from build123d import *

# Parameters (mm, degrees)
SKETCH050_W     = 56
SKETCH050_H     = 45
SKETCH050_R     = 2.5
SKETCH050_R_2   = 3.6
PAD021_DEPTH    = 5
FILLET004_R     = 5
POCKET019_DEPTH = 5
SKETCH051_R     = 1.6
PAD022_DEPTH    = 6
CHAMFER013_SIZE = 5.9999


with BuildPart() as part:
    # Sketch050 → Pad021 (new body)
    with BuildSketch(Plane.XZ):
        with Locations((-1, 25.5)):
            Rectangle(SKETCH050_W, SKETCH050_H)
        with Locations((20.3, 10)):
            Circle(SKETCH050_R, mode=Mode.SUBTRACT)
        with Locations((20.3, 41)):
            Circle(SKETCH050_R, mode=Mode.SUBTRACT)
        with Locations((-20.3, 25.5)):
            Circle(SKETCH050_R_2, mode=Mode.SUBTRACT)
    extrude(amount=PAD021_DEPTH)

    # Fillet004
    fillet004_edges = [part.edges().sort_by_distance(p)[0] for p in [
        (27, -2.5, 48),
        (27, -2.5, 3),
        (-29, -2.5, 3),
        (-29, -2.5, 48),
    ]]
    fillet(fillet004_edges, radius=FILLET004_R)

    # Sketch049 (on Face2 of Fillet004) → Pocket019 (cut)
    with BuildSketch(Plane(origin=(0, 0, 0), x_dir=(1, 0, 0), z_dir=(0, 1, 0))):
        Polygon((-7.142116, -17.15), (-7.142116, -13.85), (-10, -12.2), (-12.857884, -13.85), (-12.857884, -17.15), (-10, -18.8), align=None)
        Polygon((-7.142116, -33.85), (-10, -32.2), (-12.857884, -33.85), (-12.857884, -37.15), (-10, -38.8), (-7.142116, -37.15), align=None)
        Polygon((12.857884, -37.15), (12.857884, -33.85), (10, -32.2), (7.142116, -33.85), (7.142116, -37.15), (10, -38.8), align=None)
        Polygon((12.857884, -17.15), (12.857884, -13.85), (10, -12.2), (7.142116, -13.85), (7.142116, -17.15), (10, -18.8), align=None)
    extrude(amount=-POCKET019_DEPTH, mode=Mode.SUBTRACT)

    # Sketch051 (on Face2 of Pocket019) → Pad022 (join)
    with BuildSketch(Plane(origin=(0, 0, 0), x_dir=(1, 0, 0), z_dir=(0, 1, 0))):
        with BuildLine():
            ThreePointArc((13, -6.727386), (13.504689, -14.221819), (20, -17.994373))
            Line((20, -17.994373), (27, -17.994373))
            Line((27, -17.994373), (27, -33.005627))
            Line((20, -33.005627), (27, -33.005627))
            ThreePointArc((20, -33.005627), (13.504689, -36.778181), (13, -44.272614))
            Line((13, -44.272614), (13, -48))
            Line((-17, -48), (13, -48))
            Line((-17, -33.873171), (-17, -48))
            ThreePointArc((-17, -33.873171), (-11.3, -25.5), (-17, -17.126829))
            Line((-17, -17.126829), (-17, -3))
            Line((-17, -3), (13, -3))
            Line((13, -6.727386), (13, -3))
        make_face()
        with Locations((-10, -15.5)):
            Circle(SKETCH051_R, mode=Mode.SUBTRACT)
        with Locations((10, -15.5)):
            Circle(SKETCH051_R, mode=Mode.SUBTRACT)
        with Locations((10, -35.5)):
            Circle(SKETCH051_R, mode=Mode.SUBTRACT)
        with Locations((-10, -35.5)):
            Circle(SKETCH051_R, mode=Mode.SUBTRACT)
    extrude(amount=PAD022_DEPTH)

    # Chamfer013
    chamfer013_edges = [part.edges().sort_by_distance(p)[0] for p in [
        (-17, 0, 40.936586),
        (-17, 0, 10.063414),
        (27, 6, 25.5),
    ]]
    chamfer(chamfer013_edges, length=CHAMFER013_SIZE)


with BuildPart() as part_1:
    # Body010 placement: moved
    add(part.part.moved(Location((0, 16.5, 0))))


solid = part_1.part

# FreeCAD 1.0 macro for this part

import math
import FreeCAD as App
import Part
import Sketcher

V = App.Vector
Q = App.Units.Quantity


def edges_at(feature, points):
    """Names of the edges that pass closest to the given points."""
    edges = feature.Shape.Edges
    near = lambda p: min(range(len(edges)), key=lambda i: edges[i].distToShape(Part.Vertex(*p))[0])
    return sorted({f"Edge{near(p) + 1}" for p in points})


def add_polygon(sketch, points):
    """Adds a closed chain of lines whose ends are joined by coincident constraints."""
    first, n = sketch.GeometryCount, len(points)
    for a, b in zip(points, points[1:] + points[:1]):
        sketch.addGeometry(Part.LineSegment(App.Vector(*a, 0), App.Vector(*b, 0)), False)
    for i in range(n):
        sketch.addConstraint(Sketcher.Constraint("Coincident", first + i, 2, first + (i + 1) % n, 1))

doc = App.newDocument("Part")
body = doc.addObject("PartDesign::Body", "Body")

# Sketch on XZ plane
sketch1 = body.newObject("Sketcher::SketchObject", "Sketch")
sketch1.AttachmentSupport = (doc.getObject("XZ_Plane"), [""])
sketch1.MapMode = "FlatFace"
add_polygon(sketch1, [(-29, 48), (-29, 3), (27, 3), (27, 48)])  # lines 0-3
sketch1.addGeometry(Part.Circle(V(20.3, 10, 0), V(0, 0, 1), 2.5), False)  # 4
sketch1.addGeometry(Part.Circle(V(-20.3, 25.5, 0), V(0, 0, 1), 3.6), False)  # 5
sketch1.addGeometry(Part.Circle(V(20.3, 41, 0), V(0, 0, 1), 2.5), False)  # 6
sketch1.addConstraint(Sketcher.Constraint("Vertical", 0))
sketch1.addConstraint(Sketcher.Constraint("Horizontal", 1))
sketch1.addConstraint(Sketcher.Constraint("Vertical", 2))
sketch1.addConstraint(Sketcher.Constraint("Horizontal", 3))
sketch1.addConstraint(Sketcher.Constraint("Equal", 4, 6))
sketch1.addConstraint(Sketcher.Constraint("Vertical", 4, 3, 6, 3))
sketch1.addConstraint(Sketcher.Constraint("Diameter", 4, Q("5 mm")))
sketch1.addConstraint(Sketcher.Constraint("Diameter", 5, Q("7.2 mm")))
sketch1.addConstraint(Sketcher.Constraint("DistanceX", 1, 1, 1, 2, Q("56 mm")))
sketch1.addConstraint(Sketcher.Constraint("DistanceY", 0, 2, 0, 1, Q("45 mm")))
sketch1.addConstraint(Sketcher.Constraint("DistanceY", -1, 1, 4, 3, Q("10 mm")))
sketch1.addConstraint(Sketcher.Constraint("DistanceY", -1, 1, 6, 3, Q("41 mm")))
sketch1.addConstraint(Sketcher.Constraint("DistanceX", 0, 2, -1, 1, Q("29 mm")))
sketch1.addConstraint(Sketcher.Constraint("DistanceY", -1, 1, 0, 2, Q("3 mm")))
sketch1.addConstraint(Sketcher.Constraint("DistanceX", -1, 1, 4, 3, Q("20.3 mm")))
sketch1.addConstraint(Sketcher.Constraint("DistanceX", 5, 3, -1, 1, Q("20.3 mm")))
sketch1.addConstraint(Sketcher.Constraint("DistanceY", -1, 1, 5, 3, Q("25.5 mm")))
pad1 = body.newObject("PartDesign::Pad", "Pad")
pad1.Profile = sketch1
pad1.Length = 5
doc.recompute()

fillet = body.newObject("PartDesign::Fillet", "Fillet")
fillet.Base = (pad1, edges_at(pad1, [
    (27, -2.5, 48),
    (27, -2.5, 3),
    (-29, -2.5, 3),
    (-29, -2.5, 48),
]))
fillet.Radius = 5

# Sketch on XZ plane
sketch2 = body.newObject("Sketcher::SketchObject", "Sketch001")
sketch2.AttachmentSupport = (doc.getObject("XZ_Plane"), [""])
sketch2.MapMode = "FlatFace"
add_polygon(sketch2, [(-7.1, 17.1), (-7.1, 13.8), (-10, 12.2), (-12.9, 13.8), (-12.9, 17.1), (-10, 18.8)])  # lines 0-5
add_polygon(sketch2, [(-7.1, 33.9), (-10, 32.2), (-12.9, 33.9), (-12.9, 37.1), (-10, 38.8), (-7.1, 37.1)])  # lines 6-11
add_polygon(sketch2, [(12.9, 37.1), (12.9, 33.9), (10, 32.2), (7.1, 33.9), (7.1, 37.1), (10, 38.8)])  # lines 12-17
add_polygon(sketch2, [(12.9, 17.1), (12.9, 13.8), (10, 12.2), (7.1, 13.8), (7.1, 17.1), (10, 18.8)])  # lines 18-23
sketch2.addConstraint(Sketcher.Constraint("Vertical", 0))
sketch2.addConstraint(Sketcher.Constraint("Vertical", 3))
sketch2.addConstraint(Sketcher.Constraint("Vertical", 8))
sketch2.addConstraint(Sketcher.Constraint("Vertical", 11))
sketch2.addConstraint(Sketcher.Constraint("Vertical", 12))
sketch2.addConstraint(Sketcher.Constraint("Vertical", 15))
sketch2.addConstraint(Sketcher.Constraint("Vertical", 18))
sketch2.addConstraint(Sketcher.Constraint("Vertical", 21))
sketch2.addConstraint(Sketcher.Constraint("Symmetric", 7, 2, 12, 2, -2))
sketch2.addConstraint(Sketcher.Constraint("Symmetric", 6, 2, 13, 2, -2))
sketch2.addConstraint(Sketcher.Constraint("Symmetric", 11, 2, 14, 2, -2))
sketch2.addConstraint(Sketcher.Constraint("Symmetric", 9, 2, 16, 2, -2))
sketch2.addConstraint(Sketcher.Constraint("Symmetric", 2, 2, 18, 2, -2))
sketch2.addConstraint(Sketcher.Constraint("Symmetric", 1, 2, 19, 2, -2))
sketch2.addConstraint(Sketcher.Constraint("Symmetric", 0, 2, 20, 2, -2))
sketch2.addConstraint(Sketcher.Constraint("Symmetric", 4, 2, 22, 2, -2))
sketch2.addConstraint(Sketcher.Constraint("Parallel", 1, 4))
sketch2.addConstraint(Sketcher.Constraint("Parallel", 2, 5))
sketch2.addConstraint(Sketcher.Constraint("Parallel", 4, 6))
sketch2.addConstraint(Sketcher.Constraint("Parallel", 5, 7))
sketch2.addConstraint(Sketcher.Constraint("Parallel", 6, 9))
sketch2.addConstraint(Sketcher.Constraint("Parallel", 7, 10))
sketch2.addConstraint(Sketcher.Constraint("Parallel", 9, 13))
sketch2.addConstraint(Sketcher.Constraint("Parallel", 13, 16))
sketch2.addConstraint(Sketcher.Constraint("Parallel", 14, 17))
sketch2.addConstraint(Sketcher.Constraint("Parallel", 19, 22))
sketch2.addConstraint(Sketcher.Constraint("Parallel", 20, 23))
sketch2.addConstraint(Sketcher.Constraint("Horizontal", 0, 2, 2, 2))
sketch2.addConstraint(Sketcher.Constraint("Horizontal", 3, 2, 5, 2))
sketch2.addConstraint(Sketcher.Constraint("Horizontal", 8, 2, 10, 2))
sketch2.addConstraint(Sketcher.Constraint("Horizontal", 7, 2, 11, 2))
sketch2.addConstraint(Sketcher.Constraint("Vertical", 4, 2, 6, 2))
sketch2.addConstraint(Sketcher.Constraint("Vertical", 3, 2, 7, 2))
sketch2.addConstraint(Sketcher.Constraint("Equal", 3, 8))
sketch2.addConstraint(Sketcher.Constraint("Angle", 1, Q("-150.000001 deg")))
sketch2.addConstraint(Sketcher.Constraint("DistanceY", 0, 2, 0, 1, Q("3.3 mm")))
sketch2.addConstraint(Sketcher.Constraint("DistanceX", 1, 2, -1, 1, Q("10 mm")))
sketch2.addConstraint(Sketcher.Constraint("DistanceY", 2, 2, 7, 2, Q("20 mm")))
sketch2.addConstraint(Sketcher.Constraint("Distance", 1, Q("3.3 mm")))
sketch2.addConstraint(Sketcher.Constraint("DistanceY", -1, 1, 1, 2, Q("12.2 mm")))
pocket1 = body.newObject("PartDesign::Pocket", "Pocket")
pocket1.Profile = sketch2
pocket1.Length = 5
pocket1.Reversed = True

# Sketch on XZ plane
sketch3 = body.newObject("Sketcher::SketchObject", "Sketch002")
sketch3.AttachmentSupport = (doc.getObject("XZ_Plane"), [""])
sketch3.MapMode = "FlatFace"
sketch3.addGeometry(Part.ArcOfCircle(Part.Circle(V(20.3, 10, 0), V(0, 0, 1), 8), math.radians(92), math.radians(204)), False)
sketch3.addGeometry(Part.LineSegment(V(13, 6.7, 0), V(13, 3, 0)), False)
sketch3.addGeometry(Part.LineSegment(V(13, 3, 0), V(-17, 3, 0)), False)
sketch3.addGeometry(Part.LineSegment(V(-17, 3, 0), V(-17, 17.1, 0)), False)
sketch3.addGeometry(Part.ArcOfCircle(Part.Circle(V(-20.3, 25.5, 0), V(0, 0, 1), 9), math.radians(-68), math.radians(68)), False)
sketch3.addGeometry(Part.LineSegment(V(-17, 33.9, 0), V(-17, 48, 0)), False)
sketch3.addGeometry(Part.LineSegment(V(-17, 48, 0), V(13, 48, 0)), False)
sketch3.addGeometry(Part.LineSegment(V(13, 48, 0), V(13, 44.3, 0)), False)
sketch3.addGeometry(Part.ArcOfCircle(Part.Circle(V(20.3, 41, 0), V(0, 0, 1), 8), math.radians(156), math.radians(268)), False)
sketch3.addGeometry(Part.LineSegment(V(20, 33, 0), V(27, 33, 0)), False)
sketch3.addGeometry(Part.LineSegment(V(27, 33, 0), V(27, 18, 0)), False)
sketch3.addGeometry(Part.LineSegment(V(27, 18, 0), V(20, 18, 0)), False)
sketch3.addGeometry(Part.Circle(V(10, 35.5, 0), V(0, 0, 1), 1.6), False)
sketch3.addGeometry(Part.Circle(V(-10, 35.5, 0), V(0, 0, 1), 1.6), False)
sketch3.addGeometry(Part.Circle(V(10, 15.5, 0), V(0, 0, 1), 1.6), False)
sketch3.addGeometry(Part.Circle(V(-10, 15.5, 0), V(0, 0, 1), 1.6), False)
sketch3.addConstraint(Sketcher.Constraint("Coincident", 0, 2, 1, 1))
sketch3.addConstraint(Sketcher.Constraint("Coincident", 1, 2, 2, 1))
sketch3.addConstraint(Sketcher.Constraint("Coincident", 2, 2, 3, 1))
sketch3.addConstraint(Sketcher.Constraint("Coincident", 3, 2, 4, 1))
sketch3.addConstraint(Sketcher.Constraint("Coincident", 4, 2, 5, 1))
sketch3.addConstraint(Sketcher.Constraint("Coincident", 5, 2, 6, 1))
sketch3.addConstraint(Sketcher.Constraint("Coincident", 6, 2, 7, 1))
sketch3.addConstraint(Sketcher.Constraint("Coincident", 7, 2, 8, 1))
sketch3.addConstraint(Sketcher.Constraint("Coincident", 8, 2, 9, 1))
sketch3.addConstraint(Sketcher.Constraint("Coincident", 9, 2, 10, 1))
sketch3.addConstraint(Sketcher.Constraint("Coincident", 10, 2, 11, 1))
sketch3.addConstraint(Sketcher.Constraint("Coincident", 11, 2, 0, 1))
sketch3.addConstraint(Sketcher.Constraint("Vertical", 1))
sketch3.addConstraint(Sketcher.Constraint("Horizontal", 2))
sketch3.addConstraint(Sketcher.Constraint("Vertical", 3))
sketch3.addConstraint(Sketcher.Constraint("Vertical", 5))
sketch3.addConstraint(Sketcher.Constraint("Horizontal", 6))
sketch3.addConstraint(Sketcher.Constraint("Vertical", 7))
sketch3.addConstraint(Sketcher.Constraint("Horizontal", 9))
sketch3.addConstraint(Sketcher.Constraint("Vertical", 10))
sketch3.addConstraint(Sketcher.Constraint("Horizontal", 11))
sketch3.addConstraint(Sketcher.Constraint("Equal", 0, 8))
sketch3.addConstraint(Sketcher.Constraint("Equal", 12, 13))
sketch3.addConstraint(Sketcher.Constraint("Equal", 13, 14))
sketch3.addConstraint(Sketcher.Constraint("Equal", 14, 15))
sketch3.addConstraint(Sketcher.Constraint("Symmetric", 12, 3, 13, 3, -2))
sketch3.addConstraint(Sketcher.Constraint("Symmetric", 14, 3, 15, 3, -2))
sketch3.addConstraint(Sketcher.Constraint("Vertical", 0, 3, 8, 3))
sketch3.addConstraint(Sketcher.Constraint("Vertical", 12, 3, 14, 3))
sketch3.addConstraint(Sketcher.Constraint("Vertical", 3, 2, 4, 2))
sketch3.addConstraint(Sketcher.Constraint("Vertical", 1, 2, 6, 2))
sketch3.addConstraint(Sketcher.Constraint("Vertical", 8, 2, 11, 2))
sketch3.addConstraint(Sketcher.Constraint("Equal", 3, 5))
sketch3.addConstraint(Sketcher.Constraint("Equal", 1, 7))
sketch3.addConstraint(Sketcher.Constraint("Radius", 0, Q("8 mm")))
sketch3.addConstraint(Sketcher.Constraint("Radius", 4, Q("8.999999 mm")))
sketch3.addConstraint(Sketcher.Constraint("Diameter", 12, Q("3.2 mm")))
sketch3.addConstraint(Sketcher.Constraint("DistanceX", 2, 2, 2, 1, Q("30 mm")))
sketch3.addConstraint(Sketcher.Constraint("DistanceX", 9, 1, 9, 2, Q("7 mm")))
sketch3.addConstraint(Sketcher.Constraint("DistanceY", -1, 1, 0, 3, Q("10 mm")))
sketch3.addConstraint(Sketcher.Constraint("DistanceY", -1, 1, 8, 3, Q("41 mm")))
sketch3.addConstraint(Sketcher.Constraint("DistanceX", -1, 1, 12, 3, Q("10 mm")))
sketch3.addConstraint(Sketcher.Constraint("DistanceX", -1, 1, 0, 2, Q("13 mm")))
sketch3.addConstraint(Sketcher.Constraint("DistanceY", -1, 1, 1, 2, Q("3 mm")))
sketch3.addConstraint(Sketcher.Constraint("DistanceX", -1, 1, 8, 2, Q("20 mm")))
sketch3.addConstraint(Sketcher.Constraint("DistanceY", 4, 3, 12, 3, Q("10 mm")))
sketch3.addConstraint(Sketcher.Constraint("DistanceY", 14, 3, 12, 3, Q("20 mm")))
sketch3.addConstraint(Sketcher.Constraint("DistanceX", -1, 1, 0, 3, Q("20.299999 mm")))
sketch3.addConstraint(Sketcher.Constraint("DistanceX", 4, 3, -1, 1, Q("20.299999 mm")))
pad2 = body.newObject("PartDesign::Pad", "Pad001")
pad2.Profile = sketch3
pad2.Length = 6
pad2.Reversed = True
doc.recompute()

chamfer = body.newObject("PartDesign::Chamfer", "Chamfer")
chamfer.Base = (pad2, edges_at(pad2, [(-17, 0, 40.937), (-17, 0, 10.063), (27, 6, 25.5)]))
chamfer.Size = 5.9999
body2 = doc.addObject("PartDesign::Body", "Body001")
doc.recompute()

body.Placement = App.Placement(V(0, 16.5, 0), App.Rotation(V(0, 0, 1), 0))
boolean = body2.newObject("PartDesign::Boolean", "Boolean")
boolean.Type = "Fuse"
boolean.addObjects([body])

doc.recompute()
